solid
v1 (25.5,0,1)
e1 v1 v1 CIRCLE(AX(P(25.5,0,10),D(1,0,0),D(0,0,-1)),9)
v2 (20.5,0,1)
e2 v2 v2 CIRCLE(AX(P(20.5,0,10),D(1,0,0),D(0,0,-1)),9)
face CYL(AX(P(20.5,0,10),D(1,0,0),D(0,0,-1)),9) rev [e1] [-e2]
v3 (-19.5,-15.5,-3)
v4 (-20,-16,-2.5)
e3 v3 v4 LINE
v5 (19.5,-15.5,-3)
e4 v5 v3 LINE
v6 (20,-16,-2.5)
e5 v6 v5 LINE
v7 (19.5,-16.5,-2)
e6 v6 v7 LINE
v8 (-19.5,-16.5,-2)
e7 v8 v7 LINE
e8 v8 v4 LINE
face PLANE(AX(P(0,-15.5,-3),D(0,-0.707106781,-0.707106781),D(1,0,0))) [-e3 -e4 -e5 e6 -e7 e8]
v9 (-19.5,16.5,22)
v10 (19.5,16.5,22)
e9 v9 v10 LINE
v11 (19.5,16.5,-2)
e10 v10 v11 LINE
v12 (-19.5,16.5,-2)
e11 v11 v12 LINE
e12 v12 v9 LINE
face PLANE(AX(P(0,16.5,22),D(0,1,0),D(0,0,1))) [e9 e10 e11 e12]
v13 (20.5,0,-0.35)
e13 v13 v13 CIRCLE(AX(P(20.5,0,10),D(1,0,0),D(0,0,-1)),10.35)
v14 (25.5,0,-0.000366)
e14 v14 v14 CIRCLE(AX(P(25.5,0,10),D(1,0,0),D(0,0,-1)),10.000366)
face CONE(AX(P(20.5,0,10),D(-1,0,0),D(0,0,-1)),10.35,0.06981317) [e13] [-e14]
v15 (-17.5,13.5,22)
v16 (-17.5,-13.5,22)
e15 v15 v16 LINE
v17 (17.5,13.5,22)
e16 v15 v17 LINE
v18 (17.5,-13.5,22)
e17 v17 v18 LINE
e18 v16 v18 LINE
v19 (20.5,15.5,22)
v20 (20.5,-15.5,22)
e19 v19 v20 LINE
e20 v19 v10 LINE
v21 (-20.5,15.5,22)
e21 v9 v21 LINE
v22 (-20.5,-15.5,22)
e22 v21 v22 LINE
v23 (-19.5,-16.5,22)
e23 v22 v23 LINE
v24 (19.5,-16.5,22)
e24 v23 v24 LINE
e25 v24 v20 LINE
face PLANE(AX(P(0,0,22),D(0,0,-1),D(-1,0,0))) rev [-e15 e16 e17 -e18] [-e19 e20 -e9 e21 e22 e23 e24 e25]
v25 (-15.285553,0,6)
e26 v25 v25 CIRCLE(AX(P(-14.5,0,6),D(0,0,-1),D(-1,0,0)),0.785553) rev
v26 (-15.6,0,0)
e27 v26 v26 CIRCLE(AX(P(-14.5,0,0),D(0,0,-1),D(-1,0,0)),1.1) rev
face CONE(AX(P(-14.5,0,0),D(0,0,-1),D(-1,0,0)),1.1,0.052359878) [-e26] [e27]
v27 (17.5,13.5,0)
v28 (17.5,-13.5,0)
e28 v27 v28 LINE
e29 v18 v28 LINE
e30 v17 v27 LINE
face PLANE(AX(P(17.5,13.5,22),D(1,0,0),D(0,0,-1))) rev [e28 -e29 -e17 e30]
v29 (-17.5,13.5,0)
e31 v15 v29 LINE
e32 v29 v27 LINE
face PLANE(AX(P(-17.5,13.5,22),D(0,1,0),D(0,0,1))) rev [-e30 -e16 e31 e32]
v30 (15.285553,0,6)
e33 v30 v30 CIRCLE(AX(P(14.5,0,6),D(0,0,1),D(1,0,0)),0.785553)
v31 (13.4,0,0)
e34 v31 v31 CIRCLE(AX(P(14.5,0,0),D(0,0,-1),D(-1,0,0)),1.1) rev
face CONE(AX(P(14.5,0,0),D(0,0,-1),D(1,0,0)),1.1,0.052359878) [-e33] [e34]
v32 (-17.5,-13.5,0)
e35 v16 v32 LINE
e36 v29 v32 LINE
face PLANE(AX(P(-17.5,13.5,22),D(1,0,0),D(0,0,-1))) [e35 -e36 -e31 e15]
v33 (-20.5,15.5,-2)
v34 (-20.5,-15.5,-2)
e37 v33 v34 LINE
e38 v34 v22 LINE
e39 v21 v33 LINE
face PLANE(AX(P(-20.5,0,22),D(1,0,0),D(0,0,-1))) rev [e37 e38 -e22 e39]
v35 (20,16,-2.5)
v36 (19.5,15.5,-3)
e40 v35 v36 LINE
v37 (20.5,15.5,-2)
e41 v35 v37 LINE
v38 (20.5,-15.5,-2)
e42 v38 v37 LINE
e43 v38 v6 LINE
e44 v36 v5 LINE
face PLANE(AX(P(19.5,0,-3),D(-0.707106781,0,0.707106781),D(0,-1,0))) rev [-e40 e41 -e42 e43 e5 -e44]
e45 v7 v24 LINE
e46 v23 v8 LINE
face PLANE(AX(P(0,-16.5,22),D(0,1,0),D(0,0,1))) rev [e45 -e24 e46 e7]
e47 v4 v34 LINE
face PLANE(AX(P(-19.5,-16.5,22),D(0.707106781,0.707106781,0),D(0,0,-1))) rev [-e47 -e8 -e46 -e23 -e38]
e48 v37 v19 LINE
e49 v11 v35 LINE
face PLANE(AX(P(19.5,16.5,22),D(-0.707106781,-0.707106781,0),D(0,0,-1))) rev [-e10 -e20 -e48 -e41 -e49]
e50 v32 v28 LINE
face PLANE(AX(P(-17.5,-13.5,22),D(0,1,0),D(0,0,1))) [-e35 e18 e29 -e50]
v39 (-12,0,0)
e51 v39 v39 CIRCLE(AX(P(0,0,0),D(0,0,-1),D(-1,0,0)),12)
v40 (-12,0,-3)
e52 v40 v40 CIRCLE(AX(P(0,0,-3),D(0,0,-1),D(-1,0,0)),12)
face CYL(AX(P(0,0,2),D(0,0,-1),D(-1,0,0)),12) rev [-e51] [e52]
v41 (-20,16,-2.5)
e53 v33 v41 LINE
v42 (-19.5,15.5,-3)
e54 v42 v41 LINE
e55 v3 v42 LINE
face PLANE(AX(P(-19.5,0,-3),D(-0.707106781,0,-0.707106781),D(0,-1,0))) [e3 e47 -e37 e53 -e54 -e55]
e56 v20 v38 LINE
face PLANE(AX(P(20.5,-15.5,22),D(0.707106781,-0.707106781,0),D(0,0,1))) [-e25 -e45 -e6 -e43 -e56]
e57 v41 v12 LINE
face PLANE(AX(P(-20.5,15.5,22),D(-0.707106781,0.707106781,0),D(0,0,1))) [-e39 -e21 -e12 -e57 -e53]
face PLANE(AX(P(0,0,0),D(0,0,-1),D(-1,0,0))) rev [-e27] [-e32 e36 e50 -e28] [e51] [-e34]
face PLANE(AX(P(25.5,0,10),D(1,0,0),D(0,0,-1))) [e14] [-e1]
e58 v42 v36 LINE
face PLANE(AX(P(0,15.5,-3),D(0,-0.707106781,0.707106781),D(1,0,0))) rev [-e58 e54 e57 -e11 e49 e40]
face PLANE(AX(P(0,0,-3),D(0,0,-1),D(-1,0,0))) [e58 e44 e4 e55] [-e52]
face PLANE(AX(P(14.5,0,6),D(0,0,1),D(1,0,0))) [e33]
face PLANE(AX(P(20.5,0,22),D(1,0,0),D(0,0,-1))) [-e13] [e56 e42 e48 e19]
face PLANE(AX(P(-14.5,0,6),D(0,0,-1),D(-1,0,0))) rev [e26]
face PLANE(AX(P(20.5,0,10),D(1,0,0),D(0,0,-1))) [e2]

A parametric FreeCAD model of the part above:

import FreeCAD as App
import Part
import Sketcher

V = App.Vector


def edges_at(feature, points):
    """Names of the edges that pass closest to the given points."""
    edges = feature.Shape.Edges
    near = lambda p: min(range(len(edges)), key=lambda i: edges[i].distToShape(Part.Vertex(*p))[0])
    return sorted({f"Edge{near(p) + 1}" for p in points})


def add_polygon(sketch, points):
    """Adds a closed chain of lines whose ends are joined by coincident constraints."""
    first, n = sketch.GeometryCount, len(points)
    for a, b in zip(points, points[1:] + points[:1]):
        sketch.addGeometry(Part.LineSegment(App.Vector(*a, 0), App.Vector(*b, 0)), False)
    for i in range(n):
        sketch.addConstraint(Sketcher.Constraint("Coincident", first + i, 2, first + (i + 1) % n, 1))

doc = App.newDocument("Part")
body = doc.addObject("PartDesign::Body", "Body")

sketch1 = body.newObject("Sketcher::SketchObject", "Sketch")
sketch1.AttachmentSupport = (doc.getObject("XY_Plane"), [""])
sketch1.MapMode = "FlatFace"
add_polygon(sketch1, [(-20, 16), (-20, -16), (20, -16), (20, 16)])
add_polygon(sketch1, [(18, -14), (-18, -14), (-18, 14), (18, 14)])
sketch1.addConstraint(Sketcher.Constraint("Vertical", 0))
sketch1.addConstraint(Sketcher.Constraint("Horizontal", 1))
sketch1.addConstraint(Sketcher.Constraint("Vertical", 2))
sketch1.addConstraint(Sketcher.Constraint("Horizontal", 3))
sketch1.addConstraint(Sketcher.Constraint("Horizontal", 4))
sketch1.addConstraint(Sketcher.Constraint("Vertical", 5))
sketch1.addConstraint(Sketcher.Constraint("Horizontal", 6))
sketch1.addConstraint(Sketcher.Constraint("Vertical", 7))
sketch1.addConstraint(Sketcher.Constraint("Symmetric", 0, 2, 2, 2, -1, 1))
sketch1.addConstraint(Sketcher.Constraint("Symmetric", 4, 2, 6, 2, -1, 1))
sketch1.addConstraint(Sketcher.Constraint("DistanceX", 1, 1, 1, 2, 41.0))
sketch1.addConstraint(Sketcher.Constraint("DistanceX", 4, 2, 4, 1, 35.0))
sketch1.addConstraint(Sketcher.Constraint("DistanceY", 0, 2, 0, 1, 33.0))
sketch1.addConstraint(Sketcher.Constraint("DistanceY", 5, 1, 5, 2, 27.0))
pad1 = body.newObject("PartDesign::Pad", "Pad")
pad1.Profile = sketch1
pad1.Length = 22

sketch2 = body.newObject("Sketcher::SketchObject", "Sketch001")
sketch2.AttachmentSupport = (doc.getObject("XY_Plane"), [""])
sketch2.MapMode = "FlatFace"
add_polygon(sketch2, [(20, 16), (20, -16), (-20, -16), (-20, 16)])
sketch2.addConstraint(Sketcher.Constraint("Vertical", 0))
sketch2.addConstraint(Sketcher.Constraint("Horizontal", 1))
sketch2.addConstraint(Sketcher.Constraint("Vertical", 2))
sketch2.addConstraint(Sketcher.Constraint("Horizontal", 3))
sketch2.addConstraint(Sketcher.Constraint("Symmetric", 0, 2, 2, 2, -1, 1))
sketch2.addConstraint(Sketcher.Constraint("DistanceX", 1, 2, 1, 1, 41.0))
sketch2.addConstraint(Sketcher.Constraint("DistanceY", 0, 2, 0, 1, 33.0))
pad2 = body.newObject("PartDesign::Pad", "Pad001")
pad2.Profile = sketch2
pad2.Length = 3
pad2.Reversed = True

sketch3 = body.newObject("Sketcher::SketchObject", "Sketch002")
sketch3.AttachmentSupport = (doc.getObject("XY_Plane"), [""])
sketch3.MapMode = "FlatFace"
sketch3.AttachmentOffset = App.Placement(V(0, 0, -3), App.Rotation())
sketch3.addGeometry(Part.Circle(V(0, 0, 0), V(0, 0, 1), 12), False)
sketch3.addConstraint(Sketcher.Constraint("Coincident", 0, 3, -1, 1))
sketch3.addConstraint(Sketcher.Constraint("Diameter", 0, 24.0))
pocket1 = body.newObject("PartDesign::Pocket", "Pocket")
pocket1.Profile = sketch3
pocket1.Length = 5
pocket1.Reversed = True
doc.recompute()

chamfer = body.newObject("PartDesign::Chamfer", "Chamfer")
chamfer.Base = (pocket1, edges_at(pocket1, [(0, 16.5, -3)]))
chamfer.Size = 1
doc.recompute()

chamfer2 = body.newObject("PartDesign::Chamfer", "Chamfer001")
chamfer2.Base = (chamfer, edges_at(chamfer, [(20.5, -0.5, -3)]))
chamfer2.Size = 1
doc.recompute()

chamfer3 = body.newObject("PartDesign::Chamfer", "Chamfer002")
chamfer3.Base = (chamfer2, edges_at(chamfer2, [(-20.5, -0.5, -3)]))
chamfer3.Size = 1
doc.recompute()

chamfer4 = body.newObject("PartDesign::Chamfer", "Chamfer003")
chamfer4.Base = (chamfer3, edges_at(chamfer3, [(0, -16.5, -3)]))
chamfer4.Size = 1

sketch4 = body.newObject("Sketcher::SketchObject", "Sketch003")
sketch4.AttachmentSupport = (doc.getObject("XY_Plane"), [""])
sketch4.MapMode = "FlatFace"
sketch4.addGeometry(Part.Circle(V(14.5, 0, 0), V(0, 0, 1), 1.1), False)
sketch4.addGeometry(Part.Circle(V(-14.5, 0, 0), V(0, 0, 1), 1.1), False)
sketch4.addConstraint(Sketcher.Constraint("Equal", 0, 1))
sketch4.addConstraint(Sketcher.Constraint("Symmetric", 0, 3, 1, 3, -1, 1))
sketch4.addConstraint(Sketcher.Constraint("PointOnObject", 0, 3, -1))
sketch4.addConstraint(Sketcher.Constraint("Diameter", 0, 2.2))
sketch4.addConstraint(Sketcher.Constraint("DistanceX", 1, 3, 0, 3, 29.0))
pad3 = body.newObject("PartDesign::Pad", "Pad002")
pad3.Profile = sketch4
pad3.Length = 6
pad3.TaperAngle = -3
doc.recompute()

chamfer5 = body.newObject("PartDesign::Chamfer", "Chamfer004")
chamfer5.Base = (pad3, edges_at(pad3, [(-20.5, 16.5, 10)]))
chamfer5.Size = 1
doc.recompute()

chamfer6 = body.newObject("PartDesign::Chamfer", "Chamfer005")
chamfer6.Base = (chamfer5, edges_at(chamfer5, [(20.5, 16.5, 10)]))
chamfer6.Size = 1
doc.recompute()

chamfer7 = body.newObject("PartDesign::Chamfer", "Chamfer006")
chamfer7.Base = (chamfer6, edges_at(chamfer6, [(20.5, -16.5, 10)]))
chamfer7.Size = 1
doc.recompute()

chamfer8 = body.newObject("PartDesign::Chamfer", "Chamfer007")
chamfer8.Base = (chamfer7, edges_at(chamfer7, [(-20.5, -16.5, 10)]))
chamfer8.Size = 1

sketch5 = body.newObject("Sketcher::SketchObject", "Sketch004")
sketch5.AttachmentSupport = (doc.getObject("YZ_Plane"), [""])
sketch5.MapMode = "FlatFace"
sketch5.AttachmentOffset = App.Placement(V(0, 0, 20.5), App.Rotation())
sketch5.addGeometry(Part.Circle(V(0, 10, 0), V(0, 0, 1), 10), False)
sketch5.addConstraint(Sketcher.Constraint("PointOnObject", 0, 3, -2))
sketch5.addConstraint(Sketcher.Constraint("Diameter", 0, 20.7))
sketch5.addConstraint(Sketcher.Constraint("DistanceY", -1, 1, 0, 3, 10.0))
pad4 = body.newObject("PartDesign::Pad", "Pad003")
pad4.Profile = sketch5
pad4.Length = 5
pad4.TaperAngle = -4

sketch6 = body.newObject("Sketcher::SketchObject", "Sketch005")
sketch6.AttachmentSupport = (doc.getObject("YZ_Plane"), [""])
sketch6.MapMode = "FlatFace"
sketch6.AttachmentOffset = App.Placement(V(0, 0, 25.5), App.Rotation())
sketch6.addGeometry(Part.Circle(V(0, 10, 0), V(0, 0, 1), 9), False)
sketch6.addConstraint(Sketcher.Constraint("PointOnObject", 0, 3, -2))
sketch6.addConstraint(Sketcher.Constraint("Diameter", 0, 18.0))
sketch6.addConstraint(Sketcher.Constraint("DistanceY", -1, 1, 0, 3, 10.0))
pocket2 = body.newObject("PartDesign::Pocket", "Pocket001")
pocket2.Profile = sketch6
pocket2.Length = 5

doc.recompute()
